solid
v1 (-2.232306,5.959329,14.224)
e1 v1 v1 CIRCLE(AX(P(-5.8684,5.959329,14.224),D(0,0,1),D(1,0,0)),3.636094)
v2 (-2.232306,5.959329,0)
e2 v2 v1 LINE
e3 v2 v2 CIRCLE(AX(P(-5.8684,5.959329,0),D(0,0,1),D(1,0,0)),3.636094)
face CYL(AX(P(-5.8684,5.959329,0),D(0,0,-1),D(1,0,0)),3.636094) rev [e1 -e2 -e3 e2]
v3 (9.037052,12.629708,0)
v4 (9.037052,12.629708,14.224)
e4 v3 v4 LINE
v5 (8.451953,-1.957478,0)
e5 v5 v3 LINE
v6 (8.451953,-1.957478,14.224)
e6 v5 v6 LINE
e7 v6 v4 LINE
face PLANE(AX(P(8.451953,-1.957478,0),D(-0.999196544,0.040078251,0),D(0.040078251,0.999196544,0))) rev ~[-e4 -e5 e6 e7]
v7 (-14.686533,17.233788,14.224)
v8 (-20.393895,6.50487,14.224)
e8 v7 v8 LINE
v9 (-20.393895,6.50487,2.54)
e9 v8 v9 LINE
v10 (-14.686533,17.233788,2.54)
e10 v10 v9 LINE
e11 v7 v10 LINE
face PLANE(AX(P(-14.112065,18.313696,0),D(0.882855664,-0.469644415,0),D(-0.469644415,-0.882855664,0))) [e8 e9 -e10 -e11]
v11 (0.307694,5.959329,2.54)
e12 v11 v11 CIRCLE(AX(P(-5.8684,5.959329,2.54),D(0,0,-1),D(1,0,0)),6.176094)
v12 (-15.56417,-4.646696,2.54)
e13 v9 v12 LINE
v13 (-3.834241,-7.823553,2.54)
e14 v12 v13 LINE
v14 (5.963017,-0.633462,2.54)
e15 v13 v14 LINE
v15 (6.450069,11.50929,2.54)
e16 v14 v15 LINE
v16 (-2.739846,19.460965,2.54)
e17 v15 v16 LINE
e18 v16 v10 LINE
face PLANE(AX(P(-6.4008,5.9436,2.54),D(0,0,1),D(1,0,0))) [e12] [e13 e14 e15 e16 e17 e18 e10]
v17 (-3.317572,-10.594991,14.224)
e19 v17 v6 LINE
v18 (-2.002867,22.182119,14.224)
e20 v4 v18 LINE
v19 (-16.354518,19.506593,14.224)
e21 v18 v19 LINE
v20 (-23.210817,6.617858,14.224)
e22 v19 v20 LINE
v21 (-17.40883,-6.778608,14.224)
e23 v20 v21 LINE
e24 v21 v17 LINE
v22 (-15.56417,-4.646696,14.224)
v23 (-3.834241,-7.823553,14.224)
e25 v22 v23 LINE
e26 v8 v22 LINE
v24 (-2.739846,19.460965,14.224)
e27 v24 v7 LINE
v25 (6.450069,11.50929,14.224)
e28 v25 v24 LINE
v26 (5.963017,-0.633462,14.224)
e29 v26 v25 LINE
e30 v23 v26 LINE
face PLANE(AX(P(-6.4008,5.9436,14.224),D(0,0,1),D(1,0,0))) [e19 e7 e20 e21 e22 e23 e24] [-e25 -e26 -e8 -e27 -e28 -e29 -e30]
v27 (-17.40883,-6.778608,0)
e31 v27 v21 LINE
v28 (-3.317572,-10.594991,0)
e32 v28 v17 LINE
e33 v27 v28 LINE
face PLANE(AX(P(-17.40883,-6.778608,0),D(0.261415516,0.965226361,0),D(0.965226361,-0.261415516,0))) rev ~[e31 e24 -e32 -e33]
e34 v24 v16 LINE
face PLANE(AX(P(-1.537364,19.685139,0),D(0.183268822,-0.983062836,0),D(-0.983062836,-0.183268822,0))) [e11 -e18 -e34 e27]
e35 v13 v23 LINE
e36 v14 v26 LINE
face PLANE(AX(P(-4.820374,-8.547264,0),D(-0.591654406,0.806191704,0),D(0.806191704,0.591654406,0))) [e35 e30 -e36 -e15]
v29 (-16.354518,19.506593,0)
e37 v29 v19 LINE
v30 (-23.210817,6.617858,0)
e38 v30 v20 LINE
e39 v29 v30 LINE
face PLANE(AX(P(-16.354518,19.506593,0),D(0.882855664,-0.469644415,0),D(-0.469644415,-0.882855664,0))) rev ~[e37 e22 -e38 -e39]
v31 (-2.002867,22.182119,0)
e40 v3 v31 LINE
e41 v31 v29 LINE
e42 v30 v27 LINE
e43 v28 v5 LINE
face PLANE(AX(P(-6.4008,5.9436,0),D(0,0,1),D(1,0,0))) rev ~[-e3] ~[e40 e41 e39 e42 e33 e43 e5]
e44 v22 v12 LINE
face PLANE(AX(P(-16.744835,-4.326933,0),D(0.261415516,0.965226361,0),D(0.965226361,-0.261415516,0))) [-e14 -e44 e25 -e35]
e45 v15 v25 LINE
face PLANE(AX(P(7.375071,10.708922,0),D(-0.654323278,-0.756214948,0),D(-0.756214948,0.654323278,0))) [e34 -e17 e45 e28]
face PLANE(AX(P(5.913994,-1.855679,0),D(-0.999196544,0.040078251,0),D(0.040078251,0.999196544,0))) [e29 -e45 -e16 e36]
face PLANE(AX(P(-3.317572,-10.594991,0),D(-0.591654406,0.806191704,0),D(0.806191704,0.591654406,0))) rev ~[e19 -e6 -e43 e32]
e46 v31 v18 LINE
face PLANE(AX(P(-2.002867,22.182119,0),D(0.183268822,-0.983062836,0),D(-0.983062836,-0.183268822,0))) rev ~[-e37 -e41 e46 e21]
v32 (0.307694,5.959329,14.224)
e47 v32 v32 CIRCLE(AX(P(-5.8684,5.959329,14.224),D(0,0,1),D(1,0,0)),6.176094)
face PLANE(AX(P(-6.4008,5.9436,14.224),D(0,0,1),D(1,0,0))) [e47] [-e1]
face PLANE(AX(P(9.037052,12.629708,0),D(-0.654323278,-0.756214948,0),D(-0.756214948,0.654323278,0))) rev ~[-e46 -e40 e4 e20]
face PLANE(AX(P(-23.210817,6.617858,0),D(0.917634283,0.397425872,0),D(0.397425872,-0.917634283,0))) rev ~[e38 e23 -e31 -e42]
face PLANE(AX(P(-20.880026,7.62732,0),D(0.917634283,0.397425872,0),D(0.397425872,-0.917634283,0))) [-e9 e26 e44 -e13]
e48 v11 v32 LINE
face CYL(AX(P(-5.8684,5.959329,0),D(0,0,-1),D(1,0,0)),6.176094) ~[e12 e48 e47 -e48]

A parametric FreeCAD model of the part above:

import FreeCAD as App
import Part
import Sketcher
from FreeCAD import Vector
Q = App.Units.Quantity


def faces_at(feature, points):
    """Names of the faces that lie closest to the given points."""
    faces = feature.Shape.Faces
    near = lambda p: min(range(len(faces)), key=lambda i: faces[i].distToShape(Part.Vertex(*p))[0])
    return sorted({f"Face{near(p) + 1}" for p in points})

doc = App.newDocument("Part")
body = doc.addObject("PartDesign::Body", "Body")

# Sketch on XY plane
sketch1 = body.newObject("Sketcher::SketchObject", "Sketch")
sketch1.AttachmentSupport = (doc.getObject("XY_Plane"), [""])
sketch1.MapMode = "FlatFace"
sketch1.addGeometry(Part.LineSegment(Vector(-17.4, -6.8, 0), Vector(-3.3, -10.6, 0)), False)
sketch1.addGeometry(Part.LineSegment(Vector(-3.3, -10.6, 0), Vector(8.5, -2, 0)), False)
sketch1.addGeometry(Part.LineSegment(Vector(8.5, -2, 0), Vector(9, 12.6, 0)), False)
sketch1.addGeometry(Part.LineSegment(Vector(9, 12.6, 0), Vector(-2, 22.2, 0)), False)
sketch1.addGeometry(Part.LineSegment(Vector(-2, 22.2, 0), Vector(-16.4, 19.5, 0)), False)
sketch1.addGeometry(Part.LineSegment(Vector(-16.4, 19.5, 0), Vector(-23.2, 6.6, 0)), False)
sketch1.addGeometry(Part.LineSegment(Vector(-23.2, 6.6, 0), Vector(-17.4, -6.8, 0)), False)
sketch1.addGeometry(Part.Circle(Vector(-5.9, 6, 0), Vector(0, 0, 1), 3.6), False)
sketch1.addConstraint(Sketcher.Constraint("Coincident", 0, 2, 1, 1))
sketch1.addConstraint(Sketcher.Constraint("Coincident", 1, 2, 2, 1))
sketch1.addConstraint(Sketcher.Constraint("Coincident", 2, 2, 3, 1))
sketch1.addConstraint(Sketcher.Constraint("Coincident", 3, 2, 4, 1))
sketch1.addConstraint(Sketcher.Constraint("Coincident", 4, 2, 5, 1))
sketch1.addConstraint(Sketcher.Constraint("Coincident", 5, 2, 6, 1))
sketch1.addConstraint(Sketcher.Constraint("Coincident", 6, 2, 0, 1))
sketch1.addConstraint(Sketcher.Constraint("Equal", 0, 1))
sketch1.addConstraint(Sketcher.Constraint("Equal", 1, 2))
sketch1.addConstraint(Sketcher.Constraint("Equal", 2, 3))
sketch1.addConstraint(Sketcher.Constraint("Equal", 3, 4))
sketch1.addConstraint(Sketcher.Constraint("Equal", 4, 5))
sketch1.addConstraint(Sketcher.Constraint("Equal", 5, 6))
sketch1.addConstraint(Sketcher.Constraint("Diameter", 7, Q("7.272188 mm")))
sketch1.addConstraint(Sketcher.Constraint("DistanceX", 7, 3, -1, 1, Q("5.8684 mm")))
sketch1.addConstraint(Sketcher.Constraint("DistanceX", 1, 2, 2, 2, Q("0.585099 mm")))
sketch1.addConstraint(Sketcher.Constraint("DistanceY", 0, 2, 2, 2, Q("23.224699 mm")))
sketch1.addConstraint(Sketcher.Constraint("DistanceX", 5, 2, 4, 2, Q("6.856299 mm")))
sketch1.addConstraint(Sketcher.Constraint("DistanceY", 6, 2, 4, 2, Q("26.285201 mm")))
sketch1.addConstraint(Sketcher.Constraint("DistanceY", -1, 1, 7, 3, Q("5.959329 mm")))
sketch1.addConstraint(Sketcher.Constraint("DistanceY", 0, 2, -1, 1, Q("10.594991 mm")))
sketch1.addConstraint(Sketcher.Constraint("DistanceX", -1, 1, 2, 2, Q("9.037052 mm")))
sketch1.addConstraint(Sketcher.Constraint("DistanceY", -1, 1, 3, 2, Q("22.182119 mm")))
sketch1.addConstraint(Sketcher.Constraint("DistanceX", 6, 2, -1, 1, Q("17.40883 mm")))
pad1 = body.newObject("PartDesign::Pad", "Pad")
pad1.Profile = sketch1
pad1.Length = Q("0.56 in")
doc.recompute()

thickness = body.newObject("PartDesign::Thickness", "Thickness")
thickness.Base = (pad1, faces_at(pad1, [(-13.536, -0.762, 14.224)]))
thickness.Value = Q("0.1 in")
thickness.Reversed = True
thickness.Join = "Arc"

doc.recompute()
